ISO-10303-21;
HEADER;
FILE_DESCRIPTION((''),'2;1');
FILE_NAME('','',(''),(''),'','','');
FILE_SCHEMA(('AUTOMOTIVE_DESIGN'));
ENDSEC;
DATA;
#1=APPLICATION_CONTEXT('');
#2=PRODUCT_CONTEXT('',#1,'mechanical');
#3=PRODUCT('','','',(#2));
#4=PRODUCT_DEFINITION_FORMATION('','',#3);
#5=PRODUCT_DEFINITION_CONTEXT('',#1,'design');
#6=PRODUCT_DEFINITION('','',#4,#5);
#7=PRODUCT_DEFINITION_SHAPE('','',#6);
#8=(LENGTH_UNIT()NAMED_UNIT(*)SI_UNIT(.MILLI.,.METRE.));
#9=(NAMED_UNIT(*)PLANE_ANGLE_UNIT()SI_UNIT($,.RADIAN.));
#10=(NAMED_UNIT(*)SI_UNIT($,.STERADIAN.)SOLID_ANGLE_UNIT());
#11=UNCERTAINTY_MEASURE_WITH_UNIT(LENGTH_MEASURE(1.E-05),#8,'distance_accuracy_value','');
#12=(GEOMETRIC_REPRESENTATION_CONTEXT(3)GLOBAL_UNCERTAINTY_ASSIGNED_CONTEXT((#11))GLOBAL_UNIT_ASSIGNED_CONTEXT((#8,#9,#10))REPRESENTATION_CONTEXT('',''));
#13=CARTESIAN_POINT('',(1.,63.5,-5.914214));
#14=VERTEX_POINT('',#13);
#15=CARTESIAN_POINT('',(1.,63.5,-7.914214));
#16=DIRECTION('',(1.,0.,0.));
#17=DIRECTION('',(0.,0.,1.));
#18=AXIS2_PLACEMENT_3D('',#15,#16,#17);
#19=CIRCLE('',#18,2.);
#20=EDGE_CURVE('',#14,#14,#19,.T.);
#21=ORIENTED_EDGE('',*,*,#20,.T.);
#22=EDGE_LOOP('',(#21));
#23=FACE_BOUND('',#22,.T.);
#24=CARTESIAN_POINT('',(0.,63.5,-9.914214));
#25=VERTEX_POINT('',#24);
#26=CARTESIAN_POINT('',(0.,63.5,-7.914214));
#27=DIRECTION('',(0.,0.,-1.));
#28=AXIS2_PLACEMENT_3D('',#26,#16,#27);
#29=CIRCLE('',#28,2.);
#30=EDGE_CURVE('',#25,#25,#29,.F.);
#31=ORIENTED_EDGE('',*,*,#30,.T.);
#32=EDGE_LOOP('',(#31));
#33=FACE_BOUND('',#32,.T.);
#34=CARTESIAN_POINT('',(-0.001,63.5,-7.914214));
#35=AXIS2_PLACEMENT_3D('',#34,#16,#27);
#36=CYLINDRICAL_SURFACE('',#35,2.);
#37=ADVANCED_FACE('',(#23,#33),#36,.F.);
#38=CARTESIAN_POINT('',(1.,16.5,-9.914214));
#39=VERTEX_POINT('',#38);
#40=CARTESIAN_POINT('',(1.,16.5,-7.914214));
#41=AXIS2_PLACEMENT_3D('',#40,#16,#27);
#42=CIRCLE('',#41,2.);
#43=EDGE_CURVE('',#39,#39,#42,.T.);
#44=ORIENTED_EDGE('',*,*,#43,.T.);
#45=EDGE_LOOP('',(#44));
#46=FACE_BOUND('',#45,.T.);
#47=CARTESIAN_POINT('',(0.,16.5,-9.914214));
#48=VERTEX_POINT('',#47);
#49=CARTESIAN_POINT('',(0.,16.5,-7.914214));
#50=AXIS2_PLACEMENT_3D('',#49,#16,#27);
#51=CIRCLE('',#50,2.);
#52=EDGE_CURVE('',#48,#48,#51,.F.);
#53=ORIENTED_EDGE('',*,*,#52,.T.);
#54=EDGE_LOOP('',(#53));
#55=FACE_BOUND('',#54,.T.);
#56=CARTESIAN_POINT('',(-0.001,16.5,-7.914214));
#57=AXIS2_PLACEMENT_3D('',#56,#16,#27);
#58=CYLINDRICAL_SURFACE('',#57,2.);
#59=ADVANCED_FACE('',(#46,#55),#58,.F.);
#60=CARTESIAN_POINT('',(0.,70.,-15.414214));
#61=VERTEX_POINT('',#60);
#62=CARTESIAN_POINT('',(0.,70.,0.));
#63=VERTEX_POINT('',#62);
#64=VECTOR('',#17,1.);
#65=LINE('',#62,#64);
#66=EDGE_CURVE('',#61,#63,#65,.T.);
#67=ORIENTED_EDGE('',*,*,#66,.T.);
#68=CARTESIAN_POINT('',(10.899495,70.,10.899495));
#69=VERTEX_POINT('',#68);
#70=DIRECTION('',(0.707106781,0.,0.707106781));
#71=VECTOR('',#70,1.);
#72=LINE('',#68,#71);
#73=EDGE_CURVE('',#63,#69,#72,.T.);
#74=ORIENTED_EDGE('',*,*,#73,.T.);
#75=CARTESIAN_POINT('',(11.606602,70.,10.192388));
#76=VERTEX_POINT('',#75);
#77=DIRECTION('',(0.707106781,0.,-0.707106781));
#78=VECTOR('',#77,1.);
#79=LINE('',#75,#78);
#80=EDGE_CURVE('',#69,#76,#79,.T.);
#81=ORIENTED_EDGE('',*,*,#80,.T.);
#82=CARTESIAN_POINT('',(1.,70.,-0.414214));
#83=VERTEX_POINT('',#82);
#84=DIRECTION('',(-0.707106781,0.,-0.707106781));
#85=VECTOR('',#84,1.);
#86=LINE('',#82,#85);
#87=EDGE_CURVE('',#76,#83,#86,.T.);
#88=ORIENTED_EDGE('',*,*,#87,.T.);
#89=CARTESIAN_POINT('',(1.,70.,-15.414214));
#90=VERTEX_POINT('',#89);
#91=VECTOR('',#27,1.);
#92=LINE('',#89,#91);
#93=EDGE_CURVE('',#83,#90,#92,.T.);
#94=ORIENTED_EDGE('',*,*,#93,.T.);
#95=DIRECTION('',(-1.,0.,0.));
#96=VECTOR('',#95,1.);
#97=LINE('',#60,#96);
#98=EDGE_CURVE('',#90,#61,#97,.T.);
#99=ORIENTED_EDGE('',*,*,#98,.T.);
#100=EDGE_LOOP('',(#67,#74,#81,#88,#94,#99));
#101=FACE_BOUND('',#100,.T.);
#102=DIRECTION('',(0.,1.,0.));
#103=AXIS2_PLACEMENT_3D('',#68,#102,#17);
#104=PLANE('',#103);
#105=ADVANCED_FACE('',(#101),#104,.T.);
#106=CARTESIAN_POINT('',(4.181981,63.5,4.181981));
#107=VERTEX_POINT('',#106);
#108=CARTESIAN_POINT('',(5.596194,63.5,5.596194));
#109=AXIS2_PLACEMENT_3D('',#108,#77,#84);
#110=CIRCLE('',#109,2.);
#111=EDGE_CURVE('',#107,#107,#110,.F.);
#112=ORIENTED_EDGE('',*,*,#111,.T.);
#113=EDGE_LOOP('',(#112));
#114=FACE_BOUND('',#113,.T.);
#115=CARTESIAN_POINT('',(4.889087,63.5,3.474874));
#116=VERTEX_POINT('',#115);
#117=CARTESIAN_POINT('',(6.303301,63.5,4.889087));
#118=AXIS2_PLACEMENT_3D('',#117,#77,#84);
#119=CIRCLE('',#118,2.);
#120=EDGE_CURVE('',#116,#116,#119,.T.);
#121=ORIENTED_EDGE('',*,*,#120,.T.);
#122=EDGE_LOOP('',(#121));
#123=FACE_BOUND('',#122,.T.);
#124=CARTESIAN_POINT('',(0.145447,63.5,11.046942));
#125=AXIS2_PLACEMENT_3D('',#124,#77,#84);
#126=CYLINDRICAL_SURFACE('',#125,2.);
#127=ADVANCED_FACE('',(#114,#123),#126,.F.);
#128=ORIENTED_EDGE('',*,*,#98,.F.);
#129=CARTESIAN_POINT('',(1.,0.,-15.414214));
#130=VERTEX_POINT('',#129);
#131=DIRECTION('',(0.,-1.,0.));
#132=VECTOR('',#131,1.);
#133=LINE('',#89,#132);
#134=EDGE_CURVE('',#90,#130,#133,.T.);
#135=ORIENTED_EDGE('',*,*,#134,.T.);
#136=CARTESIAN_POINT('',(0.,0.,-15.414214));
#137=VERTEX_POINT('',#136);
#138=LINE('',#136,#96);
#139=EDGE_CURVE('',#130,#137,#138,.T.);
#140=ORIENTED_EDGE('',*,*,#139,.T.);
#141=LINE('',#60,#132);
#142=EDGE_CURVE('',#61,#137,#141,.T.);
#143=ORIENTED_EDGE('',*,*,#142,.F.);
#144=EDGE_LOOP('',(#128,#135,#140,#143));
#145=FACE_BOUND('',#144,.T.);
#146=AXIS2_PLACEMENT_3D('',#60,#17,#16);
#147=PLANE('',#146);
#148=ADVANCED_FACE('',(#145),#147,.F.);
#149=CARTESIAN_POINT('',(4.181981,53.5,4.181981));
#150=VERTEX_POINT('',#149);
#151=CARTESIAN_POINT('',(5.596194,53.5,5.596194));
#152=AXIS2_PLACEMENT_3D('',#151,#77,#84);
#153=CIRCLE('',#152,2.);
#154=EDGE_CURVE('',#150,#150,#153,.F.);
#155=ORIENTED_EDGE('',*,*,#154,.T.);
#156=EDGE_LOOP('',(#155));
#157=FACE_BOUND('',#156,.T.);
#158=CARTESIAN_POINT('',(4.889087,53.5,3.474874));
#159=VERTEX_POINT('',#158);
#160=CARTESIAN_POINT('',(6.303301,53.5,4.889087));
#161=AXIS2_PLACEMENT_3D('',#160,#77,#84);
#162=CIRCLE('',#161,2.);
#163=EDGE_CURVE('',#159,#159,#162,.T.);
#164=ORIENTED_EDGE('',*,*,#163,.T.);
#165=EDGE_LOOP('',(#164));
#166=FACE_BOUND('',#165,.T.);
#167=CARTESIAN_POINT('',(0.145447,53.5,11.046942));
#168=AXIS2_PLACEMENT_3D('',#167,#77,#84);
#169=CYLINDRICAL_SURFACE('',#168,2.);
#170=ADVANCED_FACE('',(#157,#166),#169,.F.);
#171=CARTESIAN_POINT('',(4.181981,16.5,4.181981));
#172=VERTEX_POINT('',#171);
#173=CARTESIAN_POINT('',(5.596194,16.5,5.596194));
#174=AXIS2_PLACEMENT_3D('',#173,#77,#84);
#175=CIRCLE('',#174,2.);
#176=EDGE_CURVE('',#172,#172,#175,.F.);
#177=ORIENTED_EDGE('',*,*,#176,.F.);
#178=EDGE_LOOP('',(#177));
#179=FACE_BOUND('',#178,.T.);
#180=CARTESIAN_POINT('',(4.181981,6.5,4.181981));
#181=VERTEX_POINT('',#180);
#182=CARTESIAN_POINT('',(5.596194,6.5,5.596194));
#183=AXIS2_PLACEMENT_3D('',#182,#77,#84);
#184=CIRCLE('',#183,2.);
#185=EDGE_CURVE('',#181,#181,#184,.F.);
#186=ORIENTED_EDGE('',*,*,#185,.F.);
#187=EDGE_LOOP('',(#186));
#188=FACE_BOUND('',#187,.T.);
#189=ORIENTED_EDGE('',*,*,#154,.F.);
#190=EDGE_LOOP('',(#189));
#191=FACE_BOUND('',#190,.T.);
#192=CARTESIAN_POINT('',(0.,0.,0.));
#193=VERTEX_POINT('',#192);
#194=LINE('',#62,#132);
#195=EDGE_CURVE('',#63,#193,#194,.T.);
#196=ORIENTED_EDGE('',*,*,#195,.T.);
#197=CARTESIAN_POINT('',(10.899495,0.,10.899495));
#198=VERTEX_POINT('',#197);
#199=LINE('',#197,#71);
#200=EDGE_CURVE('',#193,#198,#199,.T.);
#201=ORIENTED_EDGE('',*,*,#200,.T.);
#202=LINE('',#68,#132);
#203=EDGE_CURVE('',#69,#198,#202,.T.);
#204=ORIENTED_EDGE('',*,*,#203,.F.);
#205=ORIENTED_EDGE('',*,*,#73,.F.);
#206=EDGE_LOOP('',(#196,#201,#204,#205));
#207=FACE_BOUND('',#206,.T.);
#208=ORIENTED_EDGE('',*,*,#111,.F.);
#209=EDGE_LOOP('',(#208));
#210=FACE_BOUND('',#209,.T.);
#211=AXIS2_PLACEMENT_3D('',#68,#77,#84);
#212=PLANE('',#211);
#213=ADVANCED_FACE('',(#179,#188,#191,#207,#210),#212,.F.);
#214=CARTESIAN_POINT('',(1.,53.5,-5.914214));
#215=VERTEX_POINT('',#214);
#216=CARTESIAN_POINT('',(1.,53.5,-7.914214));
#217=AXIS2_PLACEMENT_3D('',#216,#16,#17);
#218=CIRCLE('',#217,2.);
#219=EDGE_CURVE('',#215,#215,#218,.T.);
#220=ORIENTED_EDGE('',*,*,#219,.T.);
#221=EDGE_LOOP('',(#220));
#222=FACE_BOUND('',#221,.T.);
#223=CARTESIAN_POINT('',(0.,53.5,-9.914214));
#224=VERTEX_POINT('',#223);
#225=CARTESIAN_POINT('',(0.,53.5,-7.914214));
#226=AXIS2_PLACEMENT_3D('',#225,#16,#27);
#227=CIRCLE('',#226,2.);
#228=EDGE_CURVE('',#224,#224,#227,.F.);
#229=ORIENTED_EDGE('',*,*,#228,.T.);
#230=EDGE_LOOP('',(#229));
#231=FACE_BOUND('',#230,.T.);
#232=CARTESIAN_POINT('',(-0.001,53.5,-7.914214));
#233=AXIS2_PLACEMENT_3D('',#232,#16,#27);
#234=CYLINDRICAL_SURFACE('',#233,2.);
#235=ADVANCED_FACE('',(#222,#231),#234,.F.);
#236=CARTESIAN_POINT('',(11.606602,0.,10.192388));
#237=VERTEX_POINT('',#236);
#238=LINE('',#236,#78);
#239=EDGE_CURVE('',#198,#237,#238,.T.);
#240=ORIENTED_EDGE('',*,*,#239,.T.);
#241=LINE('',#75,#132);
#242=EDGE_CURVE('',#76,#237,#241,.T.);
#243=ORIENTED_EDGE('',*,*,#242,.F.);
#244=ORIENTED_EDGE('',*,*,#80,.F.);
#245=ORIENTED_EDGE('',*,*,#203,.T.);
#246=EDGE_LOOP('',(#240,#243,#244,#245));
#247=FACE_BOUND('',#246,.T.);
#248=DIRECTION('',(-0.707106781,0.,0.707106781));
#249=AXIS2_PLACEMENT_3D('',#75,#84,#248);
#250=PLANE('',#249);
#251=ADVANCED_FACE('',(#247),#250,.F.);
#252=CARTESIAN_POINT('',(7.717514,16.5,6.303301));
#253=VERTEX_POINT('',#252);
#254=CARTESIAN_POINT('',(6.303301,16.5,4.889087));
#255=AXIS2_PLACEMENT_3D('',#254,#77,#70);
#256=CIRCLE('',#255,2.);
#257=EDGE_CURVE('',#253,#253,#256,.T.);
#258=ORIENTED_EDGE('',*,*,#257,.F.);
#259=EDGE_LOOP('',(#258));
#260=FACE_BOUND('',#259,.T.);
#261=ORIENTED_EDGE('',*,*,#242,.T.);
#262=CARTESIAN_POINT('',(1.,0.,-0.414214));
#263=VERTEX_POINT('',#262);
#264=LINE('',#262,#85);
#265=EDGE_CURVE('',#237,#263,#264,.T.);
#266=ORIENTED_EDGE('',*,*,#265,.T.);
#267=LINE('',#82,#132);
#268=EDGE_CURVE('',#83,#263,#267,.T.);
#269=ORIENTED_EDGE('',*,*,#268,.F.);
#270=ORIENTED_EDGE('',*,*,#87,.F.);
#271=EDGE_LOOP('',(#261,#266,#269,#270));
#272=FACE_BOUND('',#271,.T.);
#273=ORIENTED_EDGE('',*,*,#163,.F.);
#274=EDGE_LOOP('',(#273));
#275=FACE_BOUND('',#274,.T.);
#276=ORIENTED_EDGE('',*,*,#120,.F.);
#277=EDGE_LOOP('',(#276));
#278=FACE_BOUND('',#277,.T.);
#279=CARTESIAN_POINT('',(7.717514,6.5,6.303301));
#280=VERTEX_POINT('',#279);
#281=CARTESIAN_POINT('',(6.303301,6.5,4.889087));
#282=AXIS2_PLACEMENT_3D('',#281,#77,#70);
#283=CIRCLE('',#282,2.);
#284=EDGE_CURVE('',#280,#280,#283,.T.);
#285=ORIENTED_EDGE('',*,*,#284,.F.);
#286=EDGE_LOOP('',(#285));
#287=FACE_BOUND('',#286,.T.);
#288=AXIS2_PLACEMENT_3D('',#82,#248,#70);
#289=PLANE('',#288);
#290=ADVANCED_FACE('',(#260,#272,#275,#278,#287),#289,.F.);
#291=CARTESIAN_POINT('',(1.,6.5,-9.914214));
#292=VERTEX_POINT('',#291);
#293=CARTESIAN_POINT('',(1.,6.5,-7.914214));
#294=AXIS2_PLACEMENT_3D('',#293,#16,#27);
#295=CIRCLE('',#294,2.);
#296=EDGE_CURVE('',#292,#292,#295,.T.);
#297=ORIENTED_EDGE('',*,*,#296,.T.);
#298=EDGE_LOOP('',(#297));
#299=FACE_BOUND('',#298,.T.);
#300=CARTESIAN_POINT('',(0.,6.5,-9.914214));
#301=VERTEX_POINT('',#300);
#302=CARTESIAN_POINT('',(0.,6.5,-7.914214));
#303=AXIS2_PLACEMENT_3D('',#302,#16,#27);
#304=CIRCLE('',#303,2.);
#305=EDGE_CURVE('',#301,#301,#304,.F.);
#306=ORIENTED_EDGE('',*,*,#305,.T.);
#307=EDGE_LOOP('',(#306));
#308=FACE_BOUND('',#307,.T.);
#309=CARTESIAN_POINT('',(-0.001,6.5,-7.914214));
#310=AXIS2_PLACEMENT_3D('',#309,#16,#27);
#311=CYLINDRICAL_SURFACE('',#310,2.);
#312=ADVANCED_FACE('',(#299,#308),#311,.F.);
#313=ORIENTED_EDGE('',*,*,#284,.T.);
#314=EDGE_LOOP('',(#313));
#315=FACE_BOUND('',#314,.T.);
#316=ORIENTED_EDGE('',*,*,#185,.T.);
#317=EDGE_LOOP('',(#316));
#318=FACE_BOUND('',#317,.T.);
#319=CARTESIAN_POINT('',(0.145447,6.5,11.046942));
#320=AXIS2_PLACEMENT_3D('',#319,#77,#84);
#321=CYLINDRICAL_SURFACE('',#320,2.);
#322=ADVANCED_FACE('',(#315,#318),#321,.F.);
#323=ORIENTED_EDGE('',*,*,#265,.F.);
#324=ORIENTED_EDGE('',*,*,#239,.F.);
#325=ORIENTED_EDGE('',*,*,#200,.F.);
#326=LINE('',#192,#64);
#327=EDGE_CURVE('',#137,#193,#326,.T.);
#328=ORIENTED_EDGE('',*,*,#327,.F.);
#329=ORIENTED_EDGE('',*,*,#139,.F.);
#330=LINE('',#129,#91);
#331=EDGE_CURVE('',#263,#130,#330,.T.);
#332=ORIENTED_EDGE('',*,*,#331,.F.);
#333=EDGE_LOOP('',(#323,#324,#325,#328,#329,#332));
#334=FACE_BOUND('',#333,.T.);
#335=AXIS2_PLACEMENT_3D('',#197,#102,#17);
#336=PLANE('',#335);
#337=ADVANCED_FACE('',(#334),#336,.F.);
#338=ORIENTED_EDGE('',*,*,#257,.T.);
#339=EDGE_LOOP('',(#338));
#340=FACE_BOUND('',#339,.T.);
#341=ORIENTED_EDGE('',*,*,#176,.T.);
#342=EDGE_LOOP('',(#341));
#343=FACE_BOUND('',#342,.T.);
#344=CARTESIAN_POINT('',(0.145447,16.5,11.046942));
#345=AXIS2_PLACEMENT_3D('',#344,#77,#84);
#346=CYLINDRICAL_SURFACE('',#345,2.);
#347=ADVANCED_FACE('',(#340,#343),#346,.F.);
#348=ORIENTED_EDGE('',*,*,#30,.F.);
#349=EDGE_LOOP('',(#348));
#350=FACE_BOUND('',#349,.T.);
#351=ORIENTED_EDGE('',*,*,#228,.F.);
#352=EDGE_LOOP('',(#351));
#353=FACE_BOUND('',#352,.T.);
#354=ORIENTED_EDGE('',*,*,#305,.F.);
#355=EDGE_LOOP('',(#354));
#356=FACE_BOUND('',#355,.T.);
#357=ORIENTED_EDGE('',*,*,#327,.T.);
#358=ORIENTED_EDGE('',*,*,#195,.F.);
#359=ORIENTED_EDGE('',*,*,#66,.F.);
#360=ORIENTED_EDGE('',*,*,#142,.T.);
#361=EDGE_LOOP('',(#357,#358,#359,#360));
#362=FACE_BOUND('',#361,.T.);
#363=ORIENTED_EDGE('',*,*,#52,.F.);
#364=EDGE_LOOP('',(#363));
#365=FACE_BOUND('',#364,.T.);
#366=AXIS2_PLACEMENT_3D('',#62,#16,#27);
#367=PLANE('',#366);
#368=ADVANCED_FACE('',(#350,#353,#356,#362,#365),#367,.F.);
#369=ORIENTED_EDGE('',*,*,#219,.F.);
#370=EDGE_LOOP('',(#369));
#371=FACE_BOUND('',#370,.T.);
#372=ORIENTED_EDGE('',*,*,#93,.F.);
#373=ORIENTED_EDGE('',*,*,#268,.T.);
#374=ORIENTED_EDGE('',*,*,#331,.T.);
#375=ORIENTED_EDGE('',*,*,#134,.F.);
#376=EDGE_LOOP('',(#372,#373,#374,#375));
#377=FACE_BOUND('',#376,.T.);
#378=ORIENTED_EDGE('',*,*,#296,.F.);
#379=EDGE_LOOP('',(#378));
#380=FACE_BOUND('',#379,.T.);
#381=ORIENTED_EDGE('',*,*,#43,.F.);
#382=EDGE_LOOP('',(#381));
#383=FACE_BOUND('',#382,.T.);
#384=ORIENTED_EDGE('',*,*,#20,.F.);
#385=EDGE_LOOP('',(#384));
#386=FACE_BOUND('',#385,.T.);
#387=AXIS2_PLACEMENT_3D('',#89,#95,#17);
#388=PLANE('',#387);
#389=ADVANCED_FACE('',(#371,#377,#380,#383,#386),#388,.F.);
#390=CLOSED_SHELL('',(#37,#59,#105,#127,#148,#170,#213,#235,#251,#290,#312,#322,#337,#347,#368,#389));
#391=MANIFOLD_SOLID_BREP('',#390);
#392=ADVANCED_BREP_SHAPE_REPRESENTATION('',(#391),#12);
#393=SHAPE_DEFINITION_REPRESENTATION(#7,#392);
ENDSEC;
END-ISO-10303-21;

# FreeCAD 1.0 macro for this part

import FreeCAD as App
import Part
import Sketcher
Q = App.Units.Quantity

doc = App.newDocument("Part")
body = doc.addObject("PartDesign::Body", "Body")

sketch1 = doc.addObject("Sketcher::SketchObject", "Sketch")
body.addObject(sketch1)
sketch1.AttachmentSupport = (doc.XZ_Plane, [""])
sketch1.MapMode = "FlatFace"
sketch1.addGeometry([
    Part.LineSegment(App.Vector(0, -15.4, 0), App.Vector(0, 0, 0)),
    Part.LineSegment(App.Vector(0, 0, 0), App.Vector(10.9, 10.9, 0)),
    Part.LineSegment(App.Vector(10.9, 10.9, 0), App.Vector(11.6, 10.2, 0)),
    Part.LineSegment(App.Vector(11.6, 10.2, 0), App.Vector(1, -0.4, 0)),
    Part.LineSegment(App.Vector(1, -0.4, 0), App.Vector(1, -15.4, 0)),
    Part.LineSegment(App.Vector(1, -15.4, 0), App.Vector(0, -15.4, 0)),
], False)
sketch1.addConstraint([
    Sketcher.Constraint("Coincident", 0, 2, 1, 1),
    Sketcher.Constraint("Coincident", 1, 2, 2, 1),
    Sketcher.Constraint("Coincident", 2, 2, 3, 1),
    Sketcher.Constraint("Coincident", 3, 2, 4, 1),
    Sketcher.Constraint("Coincident", 4, 2, 5, 1),
    Sketcher.Constraint("Coincident", 5, 2, 0, 1),
    Sketcher.Constraint("Vertical", 0),
    Sketcher.Constraint("Vertical", 4),
    Sketcher.Constraint("Horizontal", 5),
    Sketcher.Constraint("Coincident", 0, 2, -1, 1),
    Sketcher.Constraint("Perpendicular", 1, 2),
    Sketcher.Constraint("Perpendicular", 2, 3),
    Sketcher.Constraint("DistanceX", 5, 2, 5, 1, Q("1 mm")),
    Sketcher.Constraint("DistanceY", 4, 2, 4, 1, Q("15 mm")),
    Sketcher.Constraint("Angle", 1, Q("45 deg")),
    Sketcher.Constraint("Distance", 2, Q("1 mm")),
    Sketcher.Constraint("Distance", 3, Q("15 mm")),
])
pad1 = doc.addObject("PartDesign::Pad", "Pad")
body.addObject(pad1)
pad1.Profile = sketch1
pad1.Length = 70
pad1.Reversed = True

sketch2 = doc.addObject("Sketcher::SketchObject", "Sketch001")
body.addObject(sketch2)
sketch2.AttachmentSupport = (doc.YZ_Plane, [""])
sketch2.MapMode = "FlatFace"
sketch2.AttachmentOffset = App.Placement(App.Vector(0, 0, 1), App.Rotation())
sketch2.addGeometry(Part.Circle(App.Vector(16.5, -7.9, 0), App.Vector(0, 0, 1), 2), False)
sketch2.addConstraint([
    Sketcher.Constraint("Diameter", 0, Q("4 mm")),
    Sketcher.Constraint("DistanceX", -1, 1, 0, 3, Q("16.5 mm")),
    Sketcher.Constraint("DistanceY", 0, 3, -1, 1, Q("7.914214 mm")),
])
pocket1 = doc.addObject("PartDesign::Pocket", "Pocket")
body.addObject(pocket1)
pocket1.Profile = sketch2
pocket1.Type = "UpToFirst"

sketch3 = doc.addObject("Sketcher::SketchObject", "Sketch002")
body.addObject(sketch3)
sketch3.AttachmentSupport = (doc.YZ_Plane, [""])
sketch3.MapMode = "FlatFace"
sketch3.AttachmentOffset = App.Placement(App.Vector(0, 0, 1), App.Rotation())
sketch3.addGeometry(Part.Circle(App.Vector(6.5, -7.9, 0), App.Vector(0, 0, 1), 2), False)
sketch3.addConstraint([
    Sketcher.Constraint("Diameter", 0, Q("4 mm")),
    Sketcher.Constraint("DistanceX", -1, 1, 0, 3, Q("6.5 mm")),
    Sketcher.Constraint("DistanceY", 0, 3, -1, 1, Q("7.914214 mm")),
])
pocket2 = doc.addObject("PartDesign::Pocket", "Pocket001")
body.addObject(pocket2)
pocket2.Profile = sketch3
pocket2.Type = "UpToFirst"

sketch4 = doc.addObject("Sketcher::SketchObject", "Sketch003")
body.addObject(sketch4)
sketch4.AttachmentSupport = (doc.YZ_Plane, [""])
sketch4.MapMode = "FlatFace"
sketch4.AttachmentOffset = App.Placement(App.Vector(0, 0, 1), App.Rotation())
sketch4.addGeometry(Part.Circle(App.Vector(53.5, -7.9, 0), App.Vector(0, 0, 1), 2), False)
sketch4.addConstraint([
    Sketcher.Constraint("Diameter", 0, Q("4 mm")),
    Sketcher.Constraint("DistanceX", -1, 1, 0, 3, Q("53.5 mm")),
    Sketcher.Constraint("DistanceY", 0, 3, -1, 1, Q("7.914214 mm")),
])
pocket3 = doc.addObject("PartDesign::Pocket", "Pocket002")
body.addObject(pocket3)
pocket3.Profile = sketch4
pocket3.Type = "UpToFirst"

sketch5 = doc.addObject("Sketcher::SketchObject", "Sketch004")
body.addObject(sketch5)
sketch5.AttachmentSupport = (doc.YZ_Plane, [""])
sketch5.MapMode = "FlatFace"
sketch5.AttachmentOffset = App.Placement(App.Vector(0, 0, 1), App.Rotation())
sketch5.addGeometry(Part.Circle(App.Vector(63.5, -7.9, 0), App.Vector(0, 0, 1), 2), False)
sketch5.addConstraint([
    Sketcher.Constraint("Diameter", 0, Q("4 mm")),
    Sketcher.Constraint("DistanceX", -1, 1, 0, 3, Q("63.5 mm")),
    Sketcher.Constraint("DistanceY", 0, 3, -1, 1, Q("7.914214 mm")),
])
pocket4 = doc.addObject("PartDesign::Pocket", "Pocket003")
body.addObject(pocket4)
pocket4.Profile = sketch5
pocket4.Type = "UpToFirst"

sketch6 = doc.addObject("Sketcher::SketchObject", "Sketch005")
body.addObject(sketch6)
sketch6.Placement = App.Placement(App.Vector(0.707107, 0, -0.707107), App.Rotation(App.Vector(-0.707106781, 0, -0.707106781), App.Vector(0, 0.999999999, 0), App.Vector(0.707106781, 0, -0.707106781), "ZXY"))
sketch6.addGeometry(Part.Circle(App.Vector(-7.9, 53.5, 0), App.Vector(0, 0, 1), 2), False)
sketch6.addConstraint([
    Sketcher.Constraint("Diameter", 0, Q("4 mm")),
    Sketcher.Constraint("DistanceY", -1, 1, 0, 3, Q("53.5 mm")),
    Sketcher.Constraint("DistanceX", 0, 3, -1, 1, Q("7.914214 mm")),
])
pocket5 = doc.addObject("PartDesign::Pocket", "Pocket004")
body.addObject(pocket5)
pocket5.Profile = sketch6
pocket5.Type = "UpToFirst"

sketch7 = doc.addObject("Sketcher::SketchObject", "Sketch006")
body.addObject(sketch7)
sketch7.Placement = App.Placement(App.Vector(0.707107, 0, -0.707107), App.Rotation(App.Vector(-0.707106781, 0, -0.707106781), App.Vector(0, 0.999999999, 0), App.Vector(0.707106781, 0, -0.707106781), "ZXY"))
sketch7.addGeometry(Part.Circle(App.Vector(-7.9, 63.5, 0), App.Vector(0, 0, 1), 2), False)
sketch7.addConstraint([
    Sketcher.Constraint("Diameter", 0, Q("4 mm")),
    Sketcher.Constraint("DistanceY", -1, 1, 0, 3, Q("63.5 mm")),
    Sketcher.Constraint("DistanceX", 0, 3, -1, 1, Q("7.914214 mm")),
])
pocket6 = doc.addObject("PartDesign::Pocket", "Pocket005")
body.addObject(pocket6)
pocket6.Profile = sketch7
pocket6.Type = "UpToFirst"

sketch8 = doc.addObject("Sketcher::SketchObject", "Sketch007")
body.addObject(sketch8)
sketch8.Placement = App.Placement(App.Vector(0.707107, 0, -0.707107), App.Rotation(App.Vector(-0.707106781, 0, -0.707106781), App.Vector(0, 0.999999999, 0), App.Vector(0.707106781, 0, -0.707106781), "ZXY"))
sketch8.addGeometry(Part.Circle(App.Vector(-7.9, 6.5, 0), App.Vector(0, 0, 1), 2), False)
sketch8.addConstraint([
    Sketcher.Constraint("Diameter", 0, Q("4 mm")),
    Sketcher.Constraint("DistanceY", -1, 1, 0, 3, Q("6.5 mm")),
    Sketcher.Constraint("DistanceX", 0, 3, -1, 1, Q("7.914214 mm")),
])
pocket7 = doc.addObject("PartDesign::Pocket", "Pocket006")
body.addObject(pocket7)
pocket7.Profile = sketch8
pocket7.Type = "UpToFirst"

sketch9 = doc.addObject("Sketcher::SketchObject", "Sketch008")
body.addObject(sketch9)
sketch9.Placement = App.Placement(App.Vector(0.707107, 0, -0.707107), App.Rotation(App.Vector(-0.707106781, 0, -0.707106781), App.Vector(0, 0.999999999, 0), App.Vector(0.707106781, 0, -0.707106781), "ZXY"))
sketch9.addGeometry(Part.Circle(App.Vector(-7.9, 16.5, 0), App.Vector(0, 0, 1), 2), False)
sketch9.addConstraint([
    Sketcher.Constraint("Diameter", 0, Q("4 mm")),
    Sketcher.Constraint("DistanceY", -1, 1, 0, 3, Q("16.5 mm")),
    Sketcher.Constraint("DistanceX", 0, 3, -1, 1, Q("7.914214 mm")),
])
pocket8 = doc.addObject("PartDesign::Pocket", "Pocket007")
body.addObject(pocket8)
pocket8.Profile = sketch9
pocket8.Type = "UpToFirst"

doc.recompute()
